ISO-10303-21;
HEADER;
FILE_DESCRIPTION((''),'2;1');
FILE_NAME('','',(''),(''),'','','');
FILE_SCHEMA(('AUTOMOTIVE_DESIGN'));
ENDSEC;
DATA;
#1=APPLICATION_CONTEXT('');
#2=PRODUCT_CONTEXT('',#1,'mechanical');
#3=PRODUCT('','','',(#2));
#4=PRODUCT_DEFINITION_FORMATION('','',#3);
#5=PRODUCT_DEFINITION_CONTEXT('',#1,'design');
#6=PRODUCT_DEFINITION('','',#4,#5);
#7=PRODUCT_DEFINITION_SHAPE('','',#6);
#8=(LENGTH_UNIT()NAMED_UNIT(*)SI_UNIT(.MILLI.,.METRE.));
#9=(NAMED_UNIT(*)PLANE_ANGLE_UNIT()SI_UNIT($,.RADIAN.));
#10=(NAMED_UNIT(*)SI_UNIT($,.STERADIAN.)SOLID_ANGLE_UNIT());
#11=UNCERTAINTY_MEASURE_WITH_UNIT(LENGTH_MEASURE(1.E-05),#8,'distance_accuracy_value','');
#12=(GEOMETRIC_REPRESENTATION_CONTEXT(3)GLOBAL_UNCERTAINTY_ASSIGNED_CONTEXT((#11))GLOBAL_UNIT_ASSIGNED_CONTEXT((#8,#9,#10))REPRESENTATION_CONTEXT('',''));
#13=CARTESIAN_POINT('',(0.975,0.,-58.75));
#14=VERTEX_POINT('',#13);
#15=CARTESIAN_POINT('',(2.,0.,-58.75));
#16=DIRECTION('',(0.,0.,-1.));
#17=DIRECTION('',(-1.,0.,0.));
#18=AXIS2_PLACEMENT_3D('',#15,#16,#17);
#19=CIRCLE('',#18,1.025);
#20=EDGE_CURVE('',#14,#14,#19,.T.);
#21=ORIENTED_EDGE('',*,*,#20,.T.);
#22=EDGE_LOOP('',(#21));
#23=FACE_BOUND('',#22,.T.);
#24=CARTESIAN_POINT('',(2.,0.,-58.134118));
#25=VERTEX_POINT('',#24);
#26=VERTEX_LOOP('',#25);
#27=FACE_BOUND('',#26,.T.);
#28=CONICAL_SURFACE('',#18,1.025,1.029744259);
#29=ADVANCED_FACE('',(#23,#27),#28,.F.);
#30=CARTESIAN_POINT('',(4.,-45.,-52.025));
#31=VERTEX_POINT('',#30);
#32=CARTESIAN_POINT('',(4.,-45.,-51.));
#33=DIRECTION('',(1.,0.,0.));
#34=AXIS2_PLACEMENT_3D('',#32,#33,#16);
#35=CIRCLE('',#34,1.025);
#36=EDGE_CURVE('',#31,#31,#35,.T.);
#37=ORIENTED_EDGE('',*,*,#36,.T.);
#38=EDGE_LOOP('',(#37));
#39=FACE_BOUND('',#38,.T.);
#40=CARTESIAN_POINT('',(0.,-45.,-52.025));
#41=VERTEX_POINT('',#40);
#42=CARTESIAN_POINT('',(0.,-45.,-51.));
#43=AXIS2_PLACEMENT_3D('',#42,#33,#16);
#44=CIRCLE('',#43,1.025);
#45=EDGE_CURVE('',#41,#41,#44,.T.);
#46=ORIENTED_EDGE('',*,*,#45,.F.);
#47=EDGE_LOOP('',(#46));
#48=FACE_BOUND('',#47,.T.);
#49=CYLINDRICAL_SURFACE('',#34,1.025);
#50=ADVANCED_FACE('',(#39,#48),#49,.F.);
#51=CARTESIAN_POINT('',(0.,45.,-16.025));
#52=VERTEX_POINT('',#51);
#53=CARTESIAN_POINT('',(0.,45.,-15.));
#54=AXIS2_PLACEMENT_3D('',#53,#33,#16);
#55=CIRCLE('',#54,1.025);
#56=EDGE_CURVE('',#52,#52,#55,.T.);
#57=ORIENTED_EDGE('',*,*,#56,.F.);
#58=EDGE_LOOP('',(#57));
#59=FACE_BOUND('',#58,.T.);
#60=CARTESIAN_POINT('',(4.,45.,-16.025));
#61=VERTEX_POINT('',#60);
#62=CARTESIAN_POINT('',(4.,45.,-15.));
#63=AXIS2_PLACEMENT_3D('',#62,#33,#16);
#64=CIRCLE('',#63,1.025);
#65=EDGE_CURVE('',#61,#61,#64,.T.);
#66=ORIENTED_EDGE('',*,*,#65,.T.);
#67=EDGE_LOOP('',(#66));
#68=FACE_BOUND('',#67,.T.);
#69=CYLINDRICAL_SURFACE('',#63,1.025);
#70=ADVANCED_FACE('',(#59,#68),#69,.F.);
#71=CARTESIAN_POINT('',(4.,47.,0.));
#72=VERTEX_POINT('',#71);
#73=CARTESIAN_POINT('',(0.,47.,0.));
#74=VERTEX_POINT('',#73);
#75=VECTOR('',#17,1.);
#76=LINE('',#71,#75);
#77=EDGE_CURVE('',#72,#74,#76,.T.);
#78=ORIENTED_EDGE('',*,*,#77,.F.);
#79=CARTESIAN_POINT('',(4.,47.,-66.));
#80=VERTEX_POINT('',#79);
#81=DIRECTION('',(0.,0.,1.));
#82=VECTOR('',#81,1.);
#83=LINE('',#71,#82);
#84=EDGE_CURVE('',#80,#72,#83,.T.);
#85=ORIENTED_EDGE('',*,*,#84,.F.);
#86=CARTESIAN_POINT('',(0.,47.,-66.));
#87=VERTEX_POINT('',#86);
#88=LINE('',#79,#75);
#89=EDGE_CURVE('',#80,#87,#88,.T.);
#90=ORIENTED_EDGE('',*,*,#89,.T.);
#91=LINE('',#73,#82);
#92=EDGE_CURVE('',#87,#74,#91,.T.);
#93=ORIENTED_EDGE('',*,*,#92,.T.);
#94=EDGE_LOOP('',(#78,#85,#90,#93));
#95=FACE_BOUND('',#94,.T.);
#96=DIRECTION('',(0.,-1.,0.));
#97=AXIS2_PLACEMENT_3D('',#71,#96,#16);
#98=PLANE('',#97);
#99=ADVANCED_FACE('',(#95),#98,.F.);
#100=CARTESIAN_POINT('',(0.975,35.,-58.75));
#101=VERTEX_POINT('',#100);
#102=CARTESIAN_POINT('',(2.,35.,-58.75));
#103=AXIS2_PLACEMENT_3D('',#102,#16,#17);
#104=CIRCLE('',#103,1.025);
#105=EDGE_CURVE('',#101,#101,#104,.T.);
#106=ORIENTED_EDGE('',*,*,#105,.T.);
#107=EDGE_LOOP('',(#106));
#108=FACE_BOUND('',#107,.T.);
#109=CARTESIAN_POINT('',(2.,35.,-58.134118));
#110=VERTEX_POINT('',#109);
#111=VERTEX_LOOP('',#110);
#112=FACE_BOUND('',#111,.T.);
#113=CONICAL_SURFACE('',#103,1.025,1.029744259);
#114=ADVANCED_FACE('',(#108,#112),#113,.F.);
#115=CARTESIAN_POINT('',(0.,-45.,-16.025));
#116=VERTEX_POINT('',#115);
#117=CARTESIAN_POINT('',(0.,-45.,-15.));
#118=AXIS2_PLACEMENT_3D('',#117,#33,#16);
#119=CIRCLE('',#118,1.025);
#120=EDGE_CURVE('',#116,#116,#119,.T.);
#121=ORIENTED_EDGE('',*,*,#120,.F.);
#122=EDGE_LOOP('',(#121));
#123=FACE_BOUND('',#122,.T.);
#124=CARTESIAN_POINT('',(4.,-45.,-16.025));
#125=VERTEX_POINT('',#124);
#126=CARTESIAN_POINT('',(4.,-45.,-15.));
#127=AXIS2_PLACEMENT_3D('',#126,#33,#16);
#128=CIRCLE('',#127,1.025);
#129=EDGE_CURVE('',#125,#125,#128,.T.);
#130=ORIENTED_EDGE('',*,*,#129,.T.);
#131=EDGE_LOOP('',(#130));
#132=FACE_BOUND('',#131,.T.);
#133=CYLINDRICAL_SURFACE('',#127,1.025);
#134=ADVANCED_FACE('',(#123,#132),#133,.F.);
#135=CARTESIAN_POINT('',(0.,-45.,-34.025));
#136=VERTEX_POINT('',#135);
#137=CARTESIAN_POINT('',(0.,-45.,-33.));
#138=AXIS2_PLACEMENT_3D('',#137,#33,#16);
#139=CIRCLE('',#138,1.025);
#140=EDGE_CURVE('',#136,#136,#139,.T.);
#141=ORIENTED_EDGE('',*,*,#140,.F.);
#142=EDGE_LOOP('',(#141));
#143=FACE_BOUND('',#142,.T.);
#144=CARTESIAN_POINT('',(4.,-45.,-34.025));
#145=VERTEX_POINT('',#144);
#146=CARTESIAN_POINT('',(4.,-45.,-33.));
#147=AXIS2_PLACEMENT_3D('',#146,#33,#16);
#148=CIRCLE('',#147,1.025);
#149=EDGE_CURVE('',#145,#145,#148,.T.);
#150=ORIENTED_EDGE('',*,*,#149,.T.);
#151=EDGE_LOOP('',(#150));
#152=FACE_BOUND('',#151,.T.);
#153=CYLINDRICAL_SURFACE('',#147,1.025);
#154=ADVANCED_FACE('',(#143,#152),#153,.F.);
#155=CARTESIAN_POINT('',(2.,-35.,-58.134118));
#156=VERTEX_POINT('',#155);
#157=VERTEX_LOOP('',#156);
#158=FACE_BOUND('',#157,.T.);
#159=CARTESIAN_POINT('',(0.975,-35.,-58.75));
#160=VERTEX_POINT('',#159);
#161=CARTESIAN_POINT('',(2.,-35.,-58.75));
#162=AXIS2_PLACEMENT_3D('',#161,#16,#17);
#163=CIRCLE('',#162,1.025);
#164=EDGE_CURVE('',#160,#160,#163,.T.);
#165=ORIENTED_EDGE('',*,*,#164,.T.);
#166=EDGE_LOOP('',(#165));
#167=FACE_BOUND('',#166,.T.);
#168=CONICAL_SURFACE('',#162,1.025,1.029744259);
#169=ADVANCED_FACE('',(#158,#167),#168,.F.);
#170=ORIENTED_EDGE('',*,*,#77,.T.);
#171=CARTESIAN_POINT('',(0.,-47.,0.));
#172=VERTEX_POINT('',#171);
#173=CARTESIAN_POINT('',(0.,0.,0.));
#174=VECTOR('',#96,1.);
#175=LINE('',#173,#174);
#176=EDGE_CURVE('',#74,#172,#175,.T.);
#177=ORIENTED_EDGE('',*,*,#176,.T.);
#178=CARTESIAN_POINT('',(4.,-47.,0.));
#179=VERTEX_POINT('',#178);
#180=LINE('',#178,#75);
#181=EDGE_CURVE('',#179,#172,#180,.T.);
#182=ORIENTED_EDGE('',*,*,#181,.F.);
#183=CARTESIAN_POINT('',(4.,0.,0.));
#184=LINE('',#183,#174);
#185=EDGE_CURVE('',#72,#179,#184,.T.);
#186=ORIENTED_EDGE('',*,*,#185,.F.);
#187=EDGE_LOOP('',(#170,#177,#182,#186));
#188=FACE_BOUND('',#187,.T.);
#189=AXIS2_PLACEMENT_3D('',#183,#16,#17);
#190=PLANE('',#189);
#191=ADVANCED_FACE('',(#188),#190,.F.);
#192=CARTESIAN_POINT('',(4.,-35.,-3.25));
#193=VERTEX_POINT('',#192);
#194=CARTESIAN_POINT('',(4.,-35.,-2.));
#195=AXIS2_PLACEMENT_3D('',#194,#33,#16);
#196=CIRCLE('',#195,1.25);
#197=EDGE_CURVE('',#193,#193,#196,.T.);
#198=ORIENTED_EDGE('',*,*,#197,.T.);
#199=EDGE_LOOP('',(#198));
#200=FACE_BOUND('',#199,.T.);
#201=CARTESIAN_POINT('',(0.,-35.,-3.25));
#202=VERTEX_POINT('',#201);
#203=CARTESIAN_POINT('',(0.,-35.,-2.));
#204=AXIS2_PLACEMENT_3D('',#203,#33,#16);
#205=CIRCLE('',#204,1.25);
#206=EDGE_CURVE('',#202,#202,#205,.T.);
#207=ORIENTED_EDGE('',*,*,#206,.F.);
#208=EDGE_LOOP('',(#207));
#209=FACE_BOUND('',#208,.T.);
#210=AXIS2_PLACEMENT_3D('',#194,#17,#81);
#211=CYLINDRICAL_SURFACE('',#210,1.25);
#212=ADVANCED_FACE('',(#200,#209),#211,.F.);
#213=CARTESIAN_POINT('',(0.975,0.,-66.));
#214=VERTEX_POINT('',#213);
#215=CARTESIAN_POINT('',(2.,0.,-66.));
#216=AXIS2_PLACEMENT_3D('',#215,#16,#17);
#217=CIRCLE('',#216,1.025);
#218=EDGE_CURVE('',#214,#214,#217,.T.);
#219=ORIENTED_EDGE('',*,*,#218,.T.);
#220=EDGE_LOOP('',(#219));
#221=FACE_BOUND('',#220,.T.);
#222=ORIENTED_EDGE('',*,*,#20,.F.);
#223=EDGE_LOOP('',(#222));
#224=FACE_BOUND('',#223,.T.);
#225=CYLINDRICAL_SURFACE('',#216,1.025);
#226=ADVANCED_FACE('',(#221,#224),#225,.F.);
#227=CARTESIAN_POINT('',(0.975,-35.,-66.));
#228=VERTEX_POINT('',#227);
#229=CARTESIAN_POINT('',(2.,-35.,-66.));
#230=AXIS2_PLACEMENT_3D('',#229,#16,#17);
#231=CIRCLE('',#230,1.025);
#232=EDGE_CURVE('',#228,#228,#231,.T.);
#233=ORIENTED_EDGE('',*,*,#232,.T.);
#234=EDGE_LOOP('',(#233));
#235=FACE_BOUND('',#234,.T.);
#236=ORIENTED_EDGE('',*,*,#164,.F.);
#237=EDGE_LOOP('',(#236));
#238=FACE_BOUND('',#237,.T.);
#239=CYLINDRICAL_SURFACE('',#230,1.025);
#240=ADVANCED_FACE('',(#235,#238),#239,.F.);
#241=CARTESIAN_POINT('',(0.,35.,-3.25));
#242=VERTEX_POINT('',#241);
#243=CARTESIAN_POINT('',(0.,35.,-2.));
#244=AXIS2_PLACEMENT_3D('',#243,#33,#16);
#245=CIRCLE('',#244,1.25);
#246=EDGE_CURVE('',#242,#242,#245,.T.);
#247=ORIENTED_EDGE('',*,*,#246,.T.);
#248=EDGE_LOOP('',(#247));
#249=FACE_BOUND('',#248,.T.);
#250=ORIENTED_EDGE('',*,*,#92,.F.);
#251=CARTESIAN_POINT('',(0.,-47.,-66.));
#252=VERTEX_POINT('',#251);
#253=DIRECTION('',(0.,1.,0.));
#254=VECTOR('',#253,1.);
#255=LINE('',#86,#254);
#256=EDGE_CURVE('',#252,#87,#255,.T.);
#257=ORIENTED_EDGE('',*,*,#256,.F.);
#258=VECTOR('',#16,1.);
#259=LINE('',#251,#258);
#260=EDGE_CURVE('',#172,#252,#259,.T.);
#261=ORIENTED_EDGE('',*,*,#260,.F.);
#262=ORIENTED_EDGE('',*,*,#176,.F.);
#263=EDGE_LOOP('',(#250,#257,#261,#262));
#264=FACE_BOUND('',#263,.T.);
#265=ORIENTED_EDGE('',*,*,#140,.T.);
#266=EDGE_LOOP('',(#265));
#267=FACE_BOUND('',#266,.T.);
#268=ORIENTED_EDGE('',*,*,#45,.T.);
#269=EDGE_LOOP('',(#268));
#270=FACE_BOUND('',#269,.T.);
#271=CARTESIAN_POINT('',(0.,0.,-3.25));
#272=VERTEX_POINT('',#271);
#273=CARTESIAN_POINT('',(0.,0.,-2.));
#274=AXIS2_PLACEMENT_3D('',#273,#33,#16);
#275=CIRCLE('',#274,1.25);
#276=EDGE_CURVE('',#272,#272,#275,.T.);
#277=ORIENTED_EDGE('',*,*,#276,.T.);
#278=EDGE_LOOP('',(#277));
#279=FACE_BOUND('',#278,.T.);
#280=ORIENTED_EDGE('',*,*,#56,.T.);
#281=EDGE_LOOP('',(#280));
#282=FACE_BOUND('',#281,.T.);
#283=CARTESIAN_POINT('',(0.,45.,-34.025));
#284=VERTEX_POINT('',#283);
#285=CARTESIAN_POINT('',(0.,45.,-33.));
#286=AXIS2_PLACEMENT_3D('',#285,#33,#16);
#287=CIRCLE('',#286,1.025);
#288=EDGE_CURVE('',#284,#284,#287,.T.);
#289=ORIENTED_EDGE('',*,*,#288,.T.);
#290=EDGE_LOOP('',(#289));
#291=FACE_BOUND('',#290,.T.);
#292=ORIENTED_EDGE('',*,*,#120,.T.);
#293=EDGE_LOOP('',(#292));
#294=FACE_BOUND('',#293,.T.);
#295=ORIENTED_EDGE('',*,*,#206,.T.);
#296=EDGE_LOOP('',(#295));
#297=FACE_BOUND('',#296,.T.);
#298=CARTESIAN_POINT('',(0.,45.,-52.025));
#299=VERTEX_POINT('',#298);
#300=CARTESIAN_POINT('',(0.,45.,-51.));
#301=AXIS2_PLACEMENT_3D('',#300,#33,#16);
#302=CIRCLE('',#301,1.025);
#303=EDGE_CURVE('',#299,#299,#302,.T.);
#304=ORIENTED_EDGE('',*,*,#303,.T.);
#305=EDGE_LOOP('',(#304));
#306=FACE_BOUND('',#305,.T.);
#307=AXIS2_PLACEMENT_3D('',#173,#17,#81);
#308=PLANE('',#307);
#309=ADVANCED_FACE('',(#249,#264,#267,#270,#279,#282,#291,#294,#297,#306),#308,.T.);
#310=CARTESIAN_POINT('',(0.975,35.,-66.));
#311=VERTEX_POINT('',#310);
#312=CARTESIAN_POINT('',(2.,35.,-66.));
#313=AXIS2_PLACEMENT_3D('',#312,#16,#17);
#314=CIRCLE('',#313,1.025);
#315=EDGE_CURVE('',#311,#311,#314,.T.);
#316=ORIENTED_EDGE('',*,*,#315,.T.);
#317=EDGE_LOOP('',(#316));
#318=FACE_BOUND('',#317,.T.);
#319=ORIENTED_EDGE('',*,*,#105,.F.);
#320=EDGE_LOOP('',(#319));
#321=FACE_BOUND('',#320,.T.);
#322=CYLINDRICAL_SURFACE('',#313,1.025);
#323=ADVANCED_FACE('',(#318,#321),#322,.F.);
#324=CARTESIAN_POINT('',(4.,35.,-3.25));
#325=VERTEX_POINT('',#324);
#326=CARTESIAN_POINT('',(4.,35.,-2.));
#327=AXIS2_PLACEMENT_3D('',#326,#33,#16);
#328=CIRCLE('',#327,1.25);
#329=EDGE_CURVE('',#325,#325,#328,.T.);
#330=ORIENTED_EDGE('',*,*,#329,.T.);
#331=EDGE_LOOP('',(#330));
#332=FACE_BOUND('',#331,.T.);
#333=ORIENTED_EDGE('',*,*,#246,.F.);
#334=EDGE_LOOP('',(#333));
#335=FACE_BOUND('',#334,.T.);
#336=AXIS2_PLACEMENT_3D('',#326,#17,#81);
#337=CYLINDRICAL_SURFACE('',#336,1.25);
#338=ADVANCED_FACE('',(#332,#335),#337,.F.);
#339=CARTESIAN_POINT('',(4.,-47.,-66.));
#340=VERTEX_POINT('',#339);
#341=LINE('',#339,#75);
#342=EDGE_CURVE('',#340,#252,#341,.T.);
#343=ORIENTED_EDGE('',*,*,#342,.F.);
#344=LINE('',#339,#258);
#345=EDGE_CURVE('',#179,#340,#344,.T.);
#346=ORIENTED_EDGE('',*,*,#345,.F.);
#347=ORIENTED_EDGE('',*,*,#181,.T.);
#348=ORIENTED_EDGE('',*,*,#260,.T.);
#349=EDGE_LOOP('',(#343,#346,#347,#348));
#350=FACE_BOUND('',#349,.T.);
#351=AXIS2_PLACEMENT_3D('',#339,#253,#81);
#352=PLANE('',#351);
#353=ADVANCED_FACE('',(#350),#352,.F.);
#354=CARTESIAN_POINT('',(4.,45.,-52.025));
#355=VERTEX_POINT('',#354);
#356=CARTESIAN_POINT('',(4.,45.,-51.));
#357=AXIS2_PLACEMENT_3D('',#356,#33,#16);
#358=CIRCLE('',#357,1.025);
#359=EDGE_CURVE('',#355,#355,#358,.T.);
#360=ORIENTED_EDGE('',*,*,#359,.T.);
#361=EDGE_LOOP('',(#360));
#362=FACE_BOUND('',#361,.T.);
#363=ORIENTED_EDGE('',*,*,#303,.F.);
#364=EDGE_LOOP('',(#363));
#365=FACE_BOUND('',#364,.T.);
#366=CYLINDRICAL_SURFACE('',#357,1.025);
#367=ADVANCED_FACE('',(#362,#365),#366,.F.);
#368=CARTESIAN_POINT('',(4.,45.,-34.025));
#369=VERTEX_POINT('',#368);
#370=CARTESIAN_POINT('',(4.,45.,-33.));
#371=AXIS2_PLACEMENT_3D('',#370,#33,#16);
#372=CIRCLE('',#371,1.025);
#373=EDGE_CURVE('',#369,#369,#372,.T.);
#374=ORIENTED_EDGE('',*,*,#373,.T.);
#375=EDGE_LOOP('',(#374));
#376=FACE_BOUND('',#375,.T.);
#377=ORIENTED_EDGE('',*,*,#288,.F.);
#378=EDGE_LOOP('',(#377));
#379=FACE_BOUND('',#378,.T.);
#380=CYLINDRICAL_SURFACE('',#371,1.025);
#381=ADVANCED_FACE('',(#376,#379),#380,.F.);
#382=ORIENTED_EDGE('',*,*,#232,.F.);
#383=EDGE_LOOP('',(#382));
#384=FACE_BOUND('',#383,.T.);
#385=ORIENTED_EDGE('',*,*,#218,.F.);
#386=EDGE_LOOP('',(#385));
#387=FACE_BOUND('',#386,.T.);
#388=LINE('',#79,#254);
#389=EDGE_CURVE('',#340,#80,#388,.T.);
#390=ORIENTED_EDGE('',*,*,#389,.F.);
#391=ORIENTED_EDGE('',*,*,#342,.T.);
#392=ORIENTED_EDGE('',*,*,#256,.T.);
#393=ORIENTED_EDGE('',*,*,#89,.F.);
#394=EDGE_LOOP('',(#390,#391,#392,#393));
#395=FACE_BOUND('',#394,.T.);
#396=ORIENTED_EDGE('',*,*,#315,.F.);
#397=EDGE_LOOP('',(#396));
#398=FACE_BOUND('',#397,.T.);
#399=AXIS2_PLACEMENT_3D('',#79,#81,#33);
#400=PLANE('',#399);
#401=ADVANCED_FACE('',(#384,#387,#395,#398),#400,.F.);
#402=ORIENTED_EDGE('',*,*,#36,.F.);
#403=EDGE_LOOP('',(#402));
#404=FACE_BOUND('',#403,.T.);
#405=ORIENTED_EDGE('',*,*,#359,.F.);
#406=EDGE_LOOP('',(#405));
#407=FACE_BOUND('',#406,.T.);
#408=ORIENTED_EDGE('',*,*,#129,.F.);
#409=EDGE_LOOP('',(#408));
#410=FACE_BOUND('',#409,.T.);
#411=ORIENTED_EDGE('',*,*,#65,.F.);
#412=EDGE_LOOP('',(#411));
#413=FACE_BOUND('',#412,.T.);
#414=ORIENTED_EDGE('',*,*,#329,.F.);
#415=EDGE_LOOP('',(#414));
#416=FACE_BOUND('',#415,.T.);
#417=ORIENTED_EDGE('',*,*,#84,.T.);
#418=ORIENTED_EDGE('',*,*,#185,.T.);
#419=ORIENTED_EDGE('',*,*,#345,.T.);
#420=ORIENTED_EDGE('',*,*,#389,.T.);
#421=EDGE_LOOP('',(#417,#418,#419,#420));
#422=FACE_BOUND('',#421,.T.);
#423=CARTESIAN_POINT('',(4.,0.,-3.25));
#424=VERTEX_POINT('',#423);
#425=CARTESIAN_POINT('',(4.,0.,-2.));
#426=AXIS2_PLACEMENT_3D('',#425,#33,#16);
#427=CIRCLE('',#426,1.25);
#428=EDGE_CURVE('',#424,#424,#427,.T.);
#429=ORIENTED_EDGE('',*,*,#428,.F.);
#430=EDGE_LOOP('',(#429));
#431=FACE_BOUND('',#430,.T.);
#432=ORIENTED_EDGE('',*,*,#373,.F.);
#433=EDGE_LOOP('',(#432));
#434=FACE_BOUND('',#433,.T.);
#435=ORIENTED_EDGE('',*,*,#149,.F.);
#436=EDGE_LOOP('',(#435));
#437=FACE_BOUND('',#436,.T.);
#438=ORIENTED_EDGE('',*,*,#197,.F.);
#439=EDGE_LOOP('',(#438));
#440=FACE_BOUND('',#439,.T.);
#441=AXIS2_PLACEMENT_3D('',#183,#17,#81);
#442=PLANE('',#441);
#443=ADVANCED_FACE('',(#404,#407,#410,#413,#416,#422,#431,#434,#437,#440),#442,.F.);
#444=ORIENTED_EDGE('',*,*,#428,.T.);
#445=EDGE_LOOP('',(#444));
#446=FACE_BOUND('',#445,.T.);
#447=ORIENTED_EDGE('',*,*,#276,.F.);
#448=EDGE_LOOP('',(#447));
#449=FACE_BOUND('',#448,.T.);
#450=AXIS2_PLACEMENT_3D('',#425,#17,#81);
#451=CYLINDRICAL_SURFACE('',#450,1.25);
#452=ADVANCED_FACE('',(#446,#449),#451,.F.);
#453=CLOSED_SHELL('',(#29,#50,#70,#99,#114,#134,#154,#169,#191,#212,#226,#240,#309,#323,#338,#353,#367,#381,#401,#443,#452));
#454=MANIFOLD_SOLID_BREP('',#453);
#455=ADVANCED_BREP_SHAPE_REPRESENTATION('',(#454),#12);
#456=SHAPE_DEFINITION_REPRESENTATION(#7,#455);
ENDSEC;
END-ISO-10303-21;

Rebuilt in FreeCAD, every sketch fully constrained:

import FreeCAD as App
import Part
import Sketcher
Q = App.Units.Quantity

doc = App.newDocument("Part")
params = doc.addObject("Spreadsheet::Sheet", "Params")
for row, (alias, value) in enumerate([
    ("sketch1_diameter", "2.5 mm"),
    ("sketch1_width", "94 mm"),
    ("sketch1_height", "66 mm"),
    ("pad1_length", "4 mm"),
    ("sketch2_diameter", "2.05 mm"),
    ("hole_diameter", "2.05 mm"),
    ("sketch3_diameter", "2.05 mm"),
    ("hole2_diameter", "2.05 mm"),
    ("hole2_depth", "7.25 mm"),
], start=1):
    params.set(f"A{row}", alias)
    params.set(f"B{row}", "=" + value)
    params.setAlias(f"B{row}", alias)

body = doc.addObject("PartDesign::Body", "Body")

# Sketch on YZ plane
sketch1 = body.newObject("Sketcher::SketchObject", "Sketch")
sketch1.AttachmentSupport = (doc.getObject("YZ_Plane"), [""])
sketch1.MapMode = "FlatFace"
sketch1.addGeometry([
    Part.LineSegment(App.Vector(47, 0, 0), App.Vector(-47, 0, 0)),  # 0
    Part.LineSegment(App.Vector(-47, 0, 0), App.Vector(-47, -66, 0)),  # 1
    Part.LineSegment(App.Vector(-47, -66, 0), App.Vector(47, -66, 0)),  # 2
    Part.LineSegment(App.Vector(47, -66, 0), App.Vector(47, 0, 0)),  # 3
    Part.Circle(App.Vector(-35, -2, 0), App.Vector(0, 0, 1), 1.2),  # 4
    Part.Circle(App.Vector(0, -2, 0), App.Vector(0, 0, 1), 1.2),  # 5
    Part.Circle(App.Vector(35, -2, 0), App.Vector(0, 0, 1), 1.2),  # 6
], False)
sketch1.addConstraint([
    Sketcher.Constraint("Coincident", 0, 2, 1, 1),
    Sketcher.Constraint("Coincident", 1, 2, 2, 1),
    Sketcher.Constraint("Coincident", 2, 2, 3, 1),
    Sketcher.Constraint("Coincident", 3, 2, 0, 1),
    Sketcher.Constraint("Horizontal", 0),
    Sketcher.Constraint("Vertical", 1),
    Sketcher.Constraint("Horizontal", 2),
    Sketcher.Constraint("Vertical", 3),
    Sketcher.Constraint("Equal", 4, 5),
    Sketcher.Constraint("Equal", 5, 6),
    Sketcher.Constraint("Symmetric", 0, 2, 3, 2, -1, 1),
    Sketcher.Constraint("Symmetric", 4, 3, 6, 3, -2),
    Sketcher.Constraint("PointOnObject", 5, 3, -2),
    Sketcher.Constraint("Horizontal", 4, 3, 5, 3),
    Sketcher.Constraint("Diameter", 4, Q("2.5 mm")),
    Sketcher.Constraint("DistanceX", 0, 2, 0, 1, Q("94 mm")),
    Sketcher.Constraint("DistanceY", 1, 2, 1, 1, Q("66 mm")),
    Sketcher.Constraint("DistanceX", 4, 3, -1, 1, Q("35 mm")),
    Sketcher.Constraint("DistanceY", 4, 3, -1, 1, Q("2 mm")),
])
sketch1.setExpression("Constraints[14]", "Params.sketch1_diameter")
sketch1.setExpression("Constraints[15]", "Params.sketch1_width")
sketch1.setExpression("Constraints[16]", "Params.sketch1_height")
pad1 = body.newObject("PartDesign::Pad", "Pad")
pad1.Profile = sketch1
pad1.setExpression("Length", "Params.pad1_length")

# Sketch on YZ plane
sketch2 = body.newObject("Sketcher::SketchObject", "Sketch001")
sketch2.AttachmentSupport = (doc.getObject("YZ_Plane"), [""])
sketch2.MapMode = "FlatFace"
sketch2.AttachmentOffset = App.Placement(App.Vector(0, 0, 4), App.Rotation())
sketch2.addGeometry([
    Part.Circle(App.Vector(45, -15, 0), App.Vector(0, 0, 1), 1),  # 0
    Part.Circle(App.Vector(45, -51, 0), App.Vector(0, 0, 1), 1),  # 1
    Part.Circle(App.Vector(-45, -15, 0), App.Vector(0, 0, 1), 1),  # 2
    Part.Circle(App.Vector(-45, -51, 0), App.Vector(0, 0, 1), 1),  # 3
    Part.Circle(App.Vector(-45, -33, 0), App.Vector(0, 0, 1), 1),  # 4
    Part.Circle(App.Vector(45, -33, 0), App.Vector(0, 0, 1), 1),  # 5
], False)
sketch2.addConstraint([
    Sketcher.Constraint("Equal", 0, 1),
    Sketcher.Constraint("Equal", 1, 2),
    Sketcher.Constraint("Equal", 2, 3),
    Sketcher.Constraint("Equal", 3, 4),
    Sketcher.Constraint("Equal", 4, 5),
    Sketcher.Constraint("Symmetric", 0, 3, 2, 3, -2),
    Sketcher.Constraint("Symmetric", 1, 3, 3, 3, -2),
    Sketcher.Constraint("Symmetric", 4, 3, 5, 3, -2),
    Sketcher.Constraint("Vertical", 0, 3, 1, 3),
    Sketcher.Constraint("Vertical", 3, 3, 4, 3),
    Sketcher.Constraint("Diameter", 0, Q("2.05 mm")),
    Sketcher.Constraint("DistanceX", -1, 1, 0, 3, Q("45 mm")),
    Sketcher.Constraint("DistanceY", 0, 3, -1, 1, Q("15 mm")),
    Sketcher.Constraint("DistanceY", 1, 3, -1, 1, Q("51 mm")),
    Sketcher.Constraint("DistanceY", 4, 3, -1, 1, Q("33 mm")),
])
sketch2.setExpression("Constraints[10]", "Params.sketch2_diameter")
doc.recompute()
hole = body.newObject("PartDesign::Hole", "Hole")
hole.Profile = sketch2
hole.ThreadType = "None"
hole.setExpression("Diameter", "Params.hole_diameter")
hole.DepthType = "ThroughAll"

# Sketch on XY plane
sketch3 = body.newObject("Sketcher::SketchObject", "Sketch002")
sketch3.AttachmentSupport = (doc.getObject("XY_Plane"), [""])
sketch3.MapMode = "FlatFace"
sketch3.AttachmentOffset = App.Placement(App.Vector(0, 0, -66), App.Rotation())
sketch3.addGeometry([
    Part.Circle(App.Vector(2, 35, 0), App.Vector(0, 0, 1), 1),
    Part.Circle(App.Vector(2, 0, 0), App.Vector(0, 0, 1), 1),
    Part.Circle(App.Vector(2, -35, 0), App.Vector(0, 0, 1), 1),
], False)
sketch3.addConstraint([
    Sketcher.Constraint("Equal", 0, 1),
    Sketcher.Constraint("Equal", 1, 2),
    Sketcher.Constraint("Symmetric", 0, 3, 2, 3, -1),
    Sketcher.Constraint("PointOnObject", 1, 3, -1),
    Sketcher.Constraint("Vertical", 0, 3, 1, 3),
    Sketcher.Constraint("Diameter", 0, Q("2.05 mm")),
    Sketcher.Constraint("DistanceX", -1, 1, 0, 3, Q("2 mm")),
    Sketcher.Constraint("DistanceY", -1, 1, 0, 3, Q("35 mm")),
])
sketch3.setExpression("Constraints[5]", "Params.sketch3_diameter")
doc.recompute()
hole2 = body.newObject("PartDesign::Hole", "Hole001")
hole2.Profile = sketch3
hole2.ThreadType = "None"
hole2.setExpression("Diameter", "Params.hole2_diameter")
hole2.DepthType = "Dimension"
hole2.setExpression("Depth", "Params.hole2_depth")
hole2.DrillPoint = "Angled"
hole2.DrillPointAngle = 118
hole2.Reversed = True

doc.recompute()
